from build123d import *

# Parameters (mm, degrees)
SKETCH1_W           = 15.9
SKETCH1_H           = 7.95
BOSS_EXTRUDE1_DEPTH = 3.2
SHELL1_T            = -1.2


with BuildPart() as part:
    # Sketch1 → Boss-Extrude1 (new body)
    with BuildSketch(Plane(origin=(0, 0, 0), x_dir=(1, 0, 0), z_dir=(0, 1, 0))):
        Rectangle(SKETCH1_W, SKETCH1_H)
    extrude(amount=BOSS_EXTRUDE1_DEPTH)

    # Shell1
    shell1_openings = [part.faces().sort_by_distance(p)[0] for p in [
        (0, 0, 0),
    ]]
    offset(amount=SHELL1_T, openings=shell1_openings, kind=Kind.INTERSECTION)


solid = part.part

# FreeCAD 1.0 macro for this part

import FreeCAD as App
import Part
import Sketcher
from FreeCAD import Vector
Q = App.Units.Quantity


def faces_at(feature, points):
    """Names of the faces that lie closest to the given points."""
    faces = feature.Shape.Faces
    near = lambda p: min(range(len(faces)), key=lambda i: faces[i].distToShape(Part.Vertex(*p))[0])
    return sorted({f"Face{near(p) + 1}" for p in points})

doc = App.newDocument("Part")
body = doc.addObject("PartDesign::Body", "Body")

sketch1 = body.newObject("Sketcher::SketchObject", "Sketch")
sketch1.AttachmentSupport = (doc.getObject("XZ_Plane"), [""])
sketch1.MapMode = "FlatFace"
sketch1.addGeometry([
    Part.LineSegment(Vector(-7.95, -3.975, 0), Vector(-7.95, 3.975, 0)),
    Part.LineSegment(Vector(-7.95, 3.975, 0), Vector(7.95, 3.975, 0)),
    Part.LineSegment(Vector(7.95, 3.975, 0), Vector(7.95, -3.975, 0)),
    Part.LineSegment(Vector(7.95, -3.975, 0), Vector(-7.95, -3.975, 0)),
], False)
sketch1.addConstraint([
    Sketcher.Constraint("Coincident", 0, 2, 1, 1),
    Sketcher.Constraint("Coincident", 1, 2, 2, 1),
    Sketcher.Constraint("Coincident", 2, 2, 3, 1),
    Sketcher.Constraint("Coincident", 3, 2, 0, 1),
    Sketcher.Constraint("Vertical", 0),
    Sketcher.Constraint("Horizontal", 1),
    Sketcher.Constraint("Vertical", 2),
    Sketcher.Constraint("Horizontal", 3),
    Sketcher.Constraint("Symmetric", 0, 2, 2, 2, -1, 1),
    Sketcher.Constraint("DistanceX", 1, 1, 1, 2, Q("15.9 mm")),
    Sketcher.Constraint("DistanceY", 0, 1, 0, 2, Q("7.95 mm")),
])
pad1 = body.newObject("PartDesign::Pad", "Pad")
pad1.Profile = sketch1
pad1.Length = 3.2
pad1.Reversed = True
doc.recompute()

thickness = body.newObject("PartDesign::Thickness", "Thickness")
thickness.Base = (pad1, faces_at(pad1, [(0, 0, 0)]))
thickness.Value = 1.2
thickness.Reversed = True
thickness.Join = "Intersection"

doc.recompute()
